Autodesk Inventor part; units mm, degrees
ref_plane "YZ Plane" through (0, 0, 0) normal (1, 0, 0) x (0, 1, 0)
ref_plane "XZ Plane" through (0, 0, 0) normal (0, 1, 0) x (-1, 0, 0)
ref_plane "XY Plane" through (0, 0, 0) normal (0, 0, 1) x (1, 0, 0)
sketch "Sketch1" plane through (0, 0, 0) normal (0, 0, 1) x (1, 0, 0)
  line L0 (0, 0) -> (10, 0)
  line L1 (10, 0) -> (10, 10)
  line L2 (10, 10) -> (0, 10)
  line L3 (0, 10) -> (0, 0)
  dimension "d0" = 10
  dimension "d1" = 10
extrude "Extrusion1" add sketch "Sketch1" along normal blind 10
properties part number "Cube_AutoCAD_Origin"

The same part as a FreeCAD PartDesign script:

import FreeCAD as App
import Part
import Sketcher
from FreeCAD import Vector
Q = App.Units.Quantity

doc = App.newDocument("Part")
params = doc.addObject("Spreadsheet::Sheet", "Params")
for row, (alias, value) in enumerate([
    ("sketch1_width", "10 mm"),
    ("pad1_length", "10 mm"),
], start=1):
    params.set(f"A{row}", alias)
    params.set(f"B{row}", "=" + value)
    params.setAlias(f"B{row}", alias)

body = doc.addObject("PartDesign::Body", "Body")

# Sketch on XY plane
sketch1 = body.newObject("Sketcher::SketchObject", "Sketch")
sketch1.AttachmentSupport = (doc.getObject("XY_Plane"), [""])
sketch1.MapMode = "FlatFace"
sketch1.addGeometry(Part.LineSegment(Vector(0, 10, 0), Vector(0, 0, 0)), False)
sketch1.addGeometry(Part.LineSegment(Vector(0, 0, 0), Vector(10, 0, 0)), False)
sketch1.addGeometry(Part.LineSegment(Vector(10, 0, 0), Vector(10, 10, 0)), False)
sketch1.addGeometry(Part.LineSegment(Vector(10, 10, 0), Vector(0, 10, 0)), False)
sketch1.addConstraint(Sketcher.Constraint("Coincident", 0, 2, 1, 1))
sketch1.addConstraint(Sketcher.Constraint("Coincident", 1, 2, 2, 1))
sketch1.addConstraint(Sketcher.Constraint("Coincident", 2, 2, 3, 1))
sketch1.addConstraint(Sketcher.Constraint("Coincident", 3, 2, 0, 1))
sketch1.addConstraint(Sketcher.Constraint("Vertical", 0))
sketch1.addConstraint(Sketcher.Constraint("Horizontal", 1))
sketch1.addConstraint(Sketcher.Constraint("Vertical", 2))
sketch1.addConstraint(Sketcher.Constraint("Horizontal", 3))
sketch1.addConstraint(Sketcher.Constraint("Coincident", 0, 2, -1, 1))
sketch1.addConstraint(Sketcher.Constraint("Equal", 3, 0))
sketch1.addConstraint(Sketcher.Constraint("DistanceX", 1, 1, 1, 2, Q("10 mm")))
sketch1.setExpression("Constraints[10]", "Params.sketch1_width")
pad1 = body.newObject("PartDesign::Pad", "Pad")
pad1.Profile = sketch1
pad1.setExpression("Length", "Params.pad1_length")

doc.recompute()
